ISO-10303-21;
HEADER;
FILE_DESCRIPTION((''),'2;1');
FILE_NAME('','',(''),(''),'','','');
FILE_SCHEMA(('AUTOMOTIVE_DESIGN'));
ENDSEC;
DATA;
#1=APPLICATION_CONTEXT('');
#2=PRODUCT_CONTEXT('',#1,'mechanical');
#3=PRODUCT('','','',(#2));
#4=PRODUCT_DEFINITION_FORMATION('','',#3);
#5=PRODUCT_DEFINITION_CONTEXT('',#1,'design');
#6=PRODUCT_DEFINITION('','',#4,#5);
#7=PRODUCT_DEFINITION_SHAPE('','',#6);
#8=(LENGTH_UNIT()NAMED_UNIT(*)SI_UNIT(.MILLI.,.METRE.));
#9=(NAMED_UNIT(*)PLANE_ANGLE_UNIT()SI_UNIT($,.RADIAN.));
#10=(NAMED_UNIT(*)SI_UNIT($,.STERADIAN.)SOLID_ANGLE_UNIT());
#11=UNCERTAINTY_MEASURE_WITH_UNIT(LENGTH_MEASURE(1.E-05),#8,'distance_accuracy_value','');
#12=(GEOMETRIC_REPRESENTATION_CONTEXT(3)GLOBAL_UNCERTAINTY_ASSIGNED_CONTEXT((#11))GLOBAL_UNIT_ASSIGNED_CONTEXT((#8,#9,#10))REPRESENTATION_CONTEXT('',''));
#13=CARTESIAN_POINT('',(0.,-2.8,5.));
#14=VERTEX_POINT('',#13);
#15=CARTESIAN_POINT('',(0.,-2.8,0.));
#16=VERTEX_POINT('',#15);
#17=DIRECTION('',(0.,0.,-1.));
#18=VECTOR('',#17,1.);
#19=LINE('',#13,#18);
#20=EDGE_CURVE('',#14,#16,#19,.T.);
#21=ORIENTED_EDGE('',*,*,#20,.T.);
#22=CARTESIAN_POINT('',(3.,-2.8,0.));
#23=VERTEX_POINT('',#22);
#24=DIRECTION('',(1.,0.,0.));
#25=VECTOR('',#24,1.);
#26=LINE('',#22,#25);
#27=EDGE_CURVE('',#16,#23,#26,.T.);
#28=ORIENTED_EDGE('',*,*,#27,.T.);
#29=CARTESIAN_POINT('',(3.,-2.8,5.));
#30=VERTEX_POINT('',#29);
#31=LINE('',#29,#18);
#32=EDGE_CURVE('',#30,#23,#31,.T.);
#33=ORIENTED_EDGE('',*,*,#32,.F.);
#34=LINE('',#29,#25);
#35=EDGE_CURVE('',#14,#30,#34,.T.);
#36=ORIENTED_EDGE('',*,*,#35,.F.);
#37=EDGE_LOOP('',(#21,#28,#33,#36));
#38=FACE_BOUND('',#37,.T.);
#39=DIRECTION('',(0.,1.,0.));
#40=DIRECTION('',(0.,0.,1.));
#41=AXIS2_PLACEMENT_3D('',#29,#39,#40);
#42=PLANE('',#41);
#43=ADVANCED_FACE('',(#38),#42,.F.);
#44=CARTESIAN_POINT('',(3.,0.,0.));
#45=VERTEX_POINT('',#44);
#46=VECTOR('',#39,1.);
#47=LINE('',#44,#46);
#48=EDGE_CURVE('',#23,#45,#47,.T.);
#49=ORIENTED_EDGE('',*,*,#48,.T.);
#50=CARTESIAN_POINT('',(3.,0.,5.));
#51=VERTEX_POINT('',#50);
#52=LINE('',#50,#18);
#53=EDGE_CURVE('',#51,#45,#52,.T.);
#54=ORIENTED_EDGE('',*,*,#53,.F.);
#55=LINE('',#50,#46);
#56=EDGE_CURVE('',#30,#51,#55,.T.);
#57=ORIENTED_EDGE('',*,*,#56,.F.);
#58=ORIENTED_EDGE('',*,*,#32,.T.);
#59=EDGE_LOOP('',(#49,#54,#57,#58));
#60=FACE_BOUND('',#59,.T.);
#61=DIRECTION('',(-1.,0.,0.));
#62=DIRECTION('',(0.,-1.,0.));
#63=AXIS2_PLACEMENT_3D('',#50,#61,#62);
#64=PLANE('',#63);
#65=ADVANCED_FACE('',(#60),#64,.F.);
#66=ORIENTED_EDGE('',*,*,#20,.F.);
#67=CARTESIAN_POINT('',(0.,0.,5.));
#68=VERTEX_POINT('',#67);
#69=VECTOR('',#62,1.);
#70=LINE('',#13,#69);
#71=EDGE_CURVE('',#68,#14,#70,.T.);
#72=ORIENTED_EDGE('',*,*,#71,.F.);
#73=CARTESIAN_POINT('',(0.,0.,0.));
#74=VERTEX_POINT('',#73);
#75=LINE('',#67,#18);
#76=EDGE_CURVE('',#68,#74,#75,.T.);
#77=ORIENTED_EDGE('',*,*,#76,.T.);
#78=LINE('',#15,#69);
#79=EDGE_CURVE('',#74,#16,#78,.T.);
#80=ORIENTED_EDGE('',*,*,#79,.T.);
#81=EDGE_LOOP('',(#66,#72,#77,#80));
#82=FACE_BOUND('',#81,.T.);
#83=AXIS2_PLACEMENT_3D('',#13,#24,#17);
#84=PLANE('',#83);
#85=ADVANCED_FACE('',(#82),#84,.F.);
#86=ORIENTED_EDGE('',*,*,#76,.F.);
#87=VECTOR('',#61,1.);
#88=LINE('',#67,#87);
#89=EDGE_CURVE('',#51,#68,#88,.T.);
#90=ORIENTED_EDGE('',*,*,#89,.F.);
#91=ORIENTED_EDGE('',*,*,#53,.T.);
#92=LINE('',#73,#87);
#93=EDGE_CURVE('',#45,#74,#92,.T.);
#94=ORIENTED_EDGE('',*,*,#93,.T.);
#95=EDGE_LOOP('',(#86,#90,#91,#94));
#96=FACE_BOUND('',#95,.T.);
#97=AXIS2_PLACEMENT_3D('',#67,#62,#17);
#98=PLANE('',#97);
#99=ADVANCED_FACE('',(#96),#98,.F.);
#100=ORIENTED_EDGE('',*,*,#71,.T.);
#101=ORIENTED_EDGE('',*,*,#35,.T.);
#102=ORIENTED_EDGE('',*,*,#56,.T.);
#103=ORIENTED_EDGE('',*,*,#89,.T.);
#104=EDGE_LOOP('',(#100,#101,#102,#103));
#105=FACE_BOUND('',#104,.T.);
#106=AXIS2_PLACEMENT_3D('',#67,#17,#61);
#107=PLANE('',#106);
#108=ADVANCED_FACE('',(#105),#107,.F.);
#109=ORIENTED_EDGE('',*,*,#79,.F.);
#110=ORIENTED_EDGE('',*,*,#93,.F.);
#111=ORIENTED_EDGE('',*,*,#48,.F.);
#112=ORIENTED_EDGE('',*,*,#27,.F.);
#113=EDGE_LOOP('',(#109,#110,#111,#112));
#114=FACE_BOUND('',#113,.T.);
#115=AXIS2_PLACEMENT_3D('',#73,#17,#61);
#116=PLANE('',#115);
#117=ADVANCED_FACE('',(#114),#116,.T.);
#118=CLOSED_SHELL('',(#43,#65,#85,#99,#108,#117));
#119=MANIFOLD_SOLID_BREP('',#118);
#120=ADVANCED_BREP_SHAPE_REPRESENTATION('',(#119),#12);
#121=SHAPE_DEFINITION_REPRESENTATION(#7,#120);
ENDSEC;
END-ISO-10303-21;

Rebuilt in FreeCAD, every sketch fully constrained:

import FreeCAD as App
import Part
import Sketcher

V = App.Vector

doc = App.newDocument("Part")
params = doc.addObject("Spreadsheet::Sheet", "Params")
for row, (alias, value) in enumerate([
    ("sketch1_width", "3 mm"),
    ("sketch1_height", "2.8 mm"),
    ("pad1_length", "5 mm"),
], start=1):
    params.set(f"A{row}", alias)
    params.set(f"B{row}", "=" + value)
    params.setAlias(f"B{row}", alias)

body = doc.addObject("PartDesign::Body", "Body")

# Sketch on XY plane
sketch1 = doc.addObject("Sketcher::SketchObject", "Sketch")
body.addObject(sketch1)
sketch1.AttachmentSupport = (doc.XY_Plane, [""])
sketch1.MapMode = "FlatFace"
sketch1.addGeometry(Part.LineSegment(V(0, 0, 0), V(0, -2.8, 0)), False)
sketch1.addGeometry(Part.LineSegment(V(0, -2.8, 0), V(3, -2.8, 0)), False)
sketch1.addGeometry(Part.LineSegment(V(3, -2.8, 0), V(3, 0, 0)), False)
sketch1.addGeometry(Part.LineSegment(V(3, 0, 0), V(0, 0, 0)), False)
sketch1.addConstraint(Sketcher.Constraint("Coincident", 0, 2, 1, 1))
sketch1.addConstraint(Sketcher.Constraint("Coincident", 1, 2, 2, 1))
sketch1.addConstraint(Sketcher.Constraint("Coincident", 2, 2, 3, 1))
sketch1.addConstraint(Sketcher.Constraint("Coincident", 3, 2, 0, 1))
sketch1.addConstraint(Sketcher.Constraint("Vertical", 0))
sketch1.addConstraint(Sketcher.Constraint("Horizontal", 1))
sketch1.addConstraint(Sketcher.Constraint("Vertical", 2))
sketch1.addConstraint(Sketcher.Constraint("Horizontal", 3))
sketch1.addConstraint(Sketcher.Constraint("Coincident", 3, 2, -1, 1))
sketch1.addConstraint(Sketcher.Constraint("DistanceX", 1, 1, 1, 2, 3.0))
sketch1.addConstraint(Sketcher.Constraint("DistanceY", 0, 2, 0, 1, 2.8))
sketch1.setExpression("Constraints[9]", "Params.sketch1_width")
sketch1.setExpression("Constraints[10]", "Params.sketch1_height")
pad1 = doc.addObject("PartDesign::Pad", "Pad")
body.addObject(pad1)
pad1.Profile = sketch1
pad1.setExpression("Length", "Params.pad1_length")

doc.recompute()
